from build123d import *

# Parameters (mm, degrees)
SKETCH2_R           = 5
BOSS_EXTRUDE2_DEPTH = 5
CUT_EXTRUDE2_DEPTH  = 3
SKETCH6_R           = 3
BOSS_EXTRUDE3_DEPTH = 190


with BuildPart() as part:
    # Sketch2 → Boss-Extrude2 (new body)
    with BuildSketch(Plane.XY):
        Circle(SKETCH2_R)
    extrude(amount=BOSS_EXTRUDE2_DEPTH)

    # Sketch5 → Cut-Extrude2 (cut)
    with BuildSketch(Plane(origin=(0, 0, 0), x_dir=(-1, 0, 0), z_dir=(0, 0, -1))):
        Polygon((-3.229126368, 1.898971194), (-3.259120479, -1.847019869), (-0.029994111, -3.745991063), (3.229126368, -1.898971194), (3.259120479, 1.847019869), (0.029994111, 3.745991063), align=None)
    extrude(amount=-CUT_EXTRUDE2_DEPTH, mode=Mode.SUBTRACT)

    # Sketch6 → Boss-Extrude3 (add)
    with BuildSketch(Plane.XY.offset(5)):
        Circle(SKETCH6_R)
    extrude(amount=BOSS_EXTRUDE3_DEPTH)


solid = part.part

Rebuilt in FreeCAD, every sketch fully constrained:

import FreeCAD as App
import Part
import Sketcher
from FreeCAD import Vector

doc = App.newDocument("Part")
body = doc.addObject("PartDesign::Body", "Body")

sketch1 = body.newObject("Sketcher::SketchObject", "Sketch")
sketch1.AttachmentSupport = (doc.getObject("XY_Plane"), [""])
sketch1.MapMode = "FlatFace"
sketch1.addGeometry(Part.Circle(Vector(0, 0, 0), Vector(0, 0, 1), 5), False)
sketch1.addConstraint([
    Sketcher.Constraint("Coincident", 0, 3, -1, 1),
    Sketcher.Constraint("Diameter", 0, 10.0),
])
pad1 = body.newObject("PartDesign::Pad", "Pad")
pad1.Profile = sketch1
pad1.Length = 5

sketch2 = body.newObject("Sketcher::SketchObject", "Sketch001")
sketch2.AttachmentSupport = (doc.getObject("XY_Plane"), [""])
sketch2.MapMode = "FlatFace"
sketch2.addGeometry([
    Part.LineSegment(Vector(3.2, 1.9, 0), Vector(3.3, -1.8, 0)),
    Part.LineSegment(Vector(3.3, -1.8, 0), Vector(0, -3.7, 0)),
    Part.LineSegment(Vector(0, -3.7, 0), Vector(-3.2, -1.9, 0)),
    Part.LineSegment(Vector(-3.2, -1.9, 0), Vector(-3.3, 1.8, 0)),
    Part.LineSegment(Vector(-3.3, 1.8, 0), Vector(0, 3.7, 0)),
    Part.LineSegment(Vector(0, 3.7, 0), Vector(3.2, 1.9, 0)),
], False)
sketch2.addConstraint([
    Sketcher.Constraint("Coincident", 0, 2, 1, 1),
    Sketcher.Constraint("Coincident", 1, 2, 2, 1),
    Sketcher.Constraint("Coincident", 2, 2, 3, 1),
    Sketcher.Constraint("Coincident", 3, 2, 4, 1),
    Sketcher.Constraint("Coincident", 4, 2, 5, 1),
    Sketcher.Constraint("Coincident", 5, 2, 0, 1),
    Sketcher.Constraint("Symmetric", 0, 2, 3, 2, -1, 1),
    Sketcher.Constraint("Symmetric", 1, 2, 4, 2, -1, 1),
    Sketcher.Constraint("Symmetric", 2, 2, 5, 2, -1, 1),
    Sketcher.Constraint("Equal", 0, 1),
    Sketcher.Constraint("Equal", 1, 2),
    Sketcher.Constraint("Distance", 0, 3.746111),
    Sketcher.Constraint("DistanceX", -1, 1, 0, 2, 3.25912),
    Sketcher.Constraint("DistanceY", 0, 2, -1, 1, 1.84702),
    Sketcher.Constraint("DistanceY", 1, 2, -1, 1, 3.745991),
])
pocket1 = body.newObject("PartDesign::Pocket", "Pocket")
pocket1.Profile = sketch2
pocket1.Length = 3
pocket1.Reversed = True

sketch3 = body.newObject("Sketcher::SketchObject", "Sketch002")
sketch3.AttachmentSupport = (doc.getObject("XY_Plane"), [""])
sketch3.MapMode = "FlatFace"
sketch3.AttachmentOffset = App.Placement(Vector(0, 0, 5), App.Rotation())
sketch3.addGeometry(Part.Circle(Vector(0, 0, 0), Vector(0, 0, 1), 3), False)
sketch3.addConstraint([
    Sketcher.Constraint("Coincident", 0, 3, -1, 1),
    Sketcher.Constraint("Diameter", 0, 6.0),
])
pad2 = body.newObject("PartDesign::Pad", "Pad001")
pad2.Profile = sketch3
pad2.Length = 190

doc.recompute()
